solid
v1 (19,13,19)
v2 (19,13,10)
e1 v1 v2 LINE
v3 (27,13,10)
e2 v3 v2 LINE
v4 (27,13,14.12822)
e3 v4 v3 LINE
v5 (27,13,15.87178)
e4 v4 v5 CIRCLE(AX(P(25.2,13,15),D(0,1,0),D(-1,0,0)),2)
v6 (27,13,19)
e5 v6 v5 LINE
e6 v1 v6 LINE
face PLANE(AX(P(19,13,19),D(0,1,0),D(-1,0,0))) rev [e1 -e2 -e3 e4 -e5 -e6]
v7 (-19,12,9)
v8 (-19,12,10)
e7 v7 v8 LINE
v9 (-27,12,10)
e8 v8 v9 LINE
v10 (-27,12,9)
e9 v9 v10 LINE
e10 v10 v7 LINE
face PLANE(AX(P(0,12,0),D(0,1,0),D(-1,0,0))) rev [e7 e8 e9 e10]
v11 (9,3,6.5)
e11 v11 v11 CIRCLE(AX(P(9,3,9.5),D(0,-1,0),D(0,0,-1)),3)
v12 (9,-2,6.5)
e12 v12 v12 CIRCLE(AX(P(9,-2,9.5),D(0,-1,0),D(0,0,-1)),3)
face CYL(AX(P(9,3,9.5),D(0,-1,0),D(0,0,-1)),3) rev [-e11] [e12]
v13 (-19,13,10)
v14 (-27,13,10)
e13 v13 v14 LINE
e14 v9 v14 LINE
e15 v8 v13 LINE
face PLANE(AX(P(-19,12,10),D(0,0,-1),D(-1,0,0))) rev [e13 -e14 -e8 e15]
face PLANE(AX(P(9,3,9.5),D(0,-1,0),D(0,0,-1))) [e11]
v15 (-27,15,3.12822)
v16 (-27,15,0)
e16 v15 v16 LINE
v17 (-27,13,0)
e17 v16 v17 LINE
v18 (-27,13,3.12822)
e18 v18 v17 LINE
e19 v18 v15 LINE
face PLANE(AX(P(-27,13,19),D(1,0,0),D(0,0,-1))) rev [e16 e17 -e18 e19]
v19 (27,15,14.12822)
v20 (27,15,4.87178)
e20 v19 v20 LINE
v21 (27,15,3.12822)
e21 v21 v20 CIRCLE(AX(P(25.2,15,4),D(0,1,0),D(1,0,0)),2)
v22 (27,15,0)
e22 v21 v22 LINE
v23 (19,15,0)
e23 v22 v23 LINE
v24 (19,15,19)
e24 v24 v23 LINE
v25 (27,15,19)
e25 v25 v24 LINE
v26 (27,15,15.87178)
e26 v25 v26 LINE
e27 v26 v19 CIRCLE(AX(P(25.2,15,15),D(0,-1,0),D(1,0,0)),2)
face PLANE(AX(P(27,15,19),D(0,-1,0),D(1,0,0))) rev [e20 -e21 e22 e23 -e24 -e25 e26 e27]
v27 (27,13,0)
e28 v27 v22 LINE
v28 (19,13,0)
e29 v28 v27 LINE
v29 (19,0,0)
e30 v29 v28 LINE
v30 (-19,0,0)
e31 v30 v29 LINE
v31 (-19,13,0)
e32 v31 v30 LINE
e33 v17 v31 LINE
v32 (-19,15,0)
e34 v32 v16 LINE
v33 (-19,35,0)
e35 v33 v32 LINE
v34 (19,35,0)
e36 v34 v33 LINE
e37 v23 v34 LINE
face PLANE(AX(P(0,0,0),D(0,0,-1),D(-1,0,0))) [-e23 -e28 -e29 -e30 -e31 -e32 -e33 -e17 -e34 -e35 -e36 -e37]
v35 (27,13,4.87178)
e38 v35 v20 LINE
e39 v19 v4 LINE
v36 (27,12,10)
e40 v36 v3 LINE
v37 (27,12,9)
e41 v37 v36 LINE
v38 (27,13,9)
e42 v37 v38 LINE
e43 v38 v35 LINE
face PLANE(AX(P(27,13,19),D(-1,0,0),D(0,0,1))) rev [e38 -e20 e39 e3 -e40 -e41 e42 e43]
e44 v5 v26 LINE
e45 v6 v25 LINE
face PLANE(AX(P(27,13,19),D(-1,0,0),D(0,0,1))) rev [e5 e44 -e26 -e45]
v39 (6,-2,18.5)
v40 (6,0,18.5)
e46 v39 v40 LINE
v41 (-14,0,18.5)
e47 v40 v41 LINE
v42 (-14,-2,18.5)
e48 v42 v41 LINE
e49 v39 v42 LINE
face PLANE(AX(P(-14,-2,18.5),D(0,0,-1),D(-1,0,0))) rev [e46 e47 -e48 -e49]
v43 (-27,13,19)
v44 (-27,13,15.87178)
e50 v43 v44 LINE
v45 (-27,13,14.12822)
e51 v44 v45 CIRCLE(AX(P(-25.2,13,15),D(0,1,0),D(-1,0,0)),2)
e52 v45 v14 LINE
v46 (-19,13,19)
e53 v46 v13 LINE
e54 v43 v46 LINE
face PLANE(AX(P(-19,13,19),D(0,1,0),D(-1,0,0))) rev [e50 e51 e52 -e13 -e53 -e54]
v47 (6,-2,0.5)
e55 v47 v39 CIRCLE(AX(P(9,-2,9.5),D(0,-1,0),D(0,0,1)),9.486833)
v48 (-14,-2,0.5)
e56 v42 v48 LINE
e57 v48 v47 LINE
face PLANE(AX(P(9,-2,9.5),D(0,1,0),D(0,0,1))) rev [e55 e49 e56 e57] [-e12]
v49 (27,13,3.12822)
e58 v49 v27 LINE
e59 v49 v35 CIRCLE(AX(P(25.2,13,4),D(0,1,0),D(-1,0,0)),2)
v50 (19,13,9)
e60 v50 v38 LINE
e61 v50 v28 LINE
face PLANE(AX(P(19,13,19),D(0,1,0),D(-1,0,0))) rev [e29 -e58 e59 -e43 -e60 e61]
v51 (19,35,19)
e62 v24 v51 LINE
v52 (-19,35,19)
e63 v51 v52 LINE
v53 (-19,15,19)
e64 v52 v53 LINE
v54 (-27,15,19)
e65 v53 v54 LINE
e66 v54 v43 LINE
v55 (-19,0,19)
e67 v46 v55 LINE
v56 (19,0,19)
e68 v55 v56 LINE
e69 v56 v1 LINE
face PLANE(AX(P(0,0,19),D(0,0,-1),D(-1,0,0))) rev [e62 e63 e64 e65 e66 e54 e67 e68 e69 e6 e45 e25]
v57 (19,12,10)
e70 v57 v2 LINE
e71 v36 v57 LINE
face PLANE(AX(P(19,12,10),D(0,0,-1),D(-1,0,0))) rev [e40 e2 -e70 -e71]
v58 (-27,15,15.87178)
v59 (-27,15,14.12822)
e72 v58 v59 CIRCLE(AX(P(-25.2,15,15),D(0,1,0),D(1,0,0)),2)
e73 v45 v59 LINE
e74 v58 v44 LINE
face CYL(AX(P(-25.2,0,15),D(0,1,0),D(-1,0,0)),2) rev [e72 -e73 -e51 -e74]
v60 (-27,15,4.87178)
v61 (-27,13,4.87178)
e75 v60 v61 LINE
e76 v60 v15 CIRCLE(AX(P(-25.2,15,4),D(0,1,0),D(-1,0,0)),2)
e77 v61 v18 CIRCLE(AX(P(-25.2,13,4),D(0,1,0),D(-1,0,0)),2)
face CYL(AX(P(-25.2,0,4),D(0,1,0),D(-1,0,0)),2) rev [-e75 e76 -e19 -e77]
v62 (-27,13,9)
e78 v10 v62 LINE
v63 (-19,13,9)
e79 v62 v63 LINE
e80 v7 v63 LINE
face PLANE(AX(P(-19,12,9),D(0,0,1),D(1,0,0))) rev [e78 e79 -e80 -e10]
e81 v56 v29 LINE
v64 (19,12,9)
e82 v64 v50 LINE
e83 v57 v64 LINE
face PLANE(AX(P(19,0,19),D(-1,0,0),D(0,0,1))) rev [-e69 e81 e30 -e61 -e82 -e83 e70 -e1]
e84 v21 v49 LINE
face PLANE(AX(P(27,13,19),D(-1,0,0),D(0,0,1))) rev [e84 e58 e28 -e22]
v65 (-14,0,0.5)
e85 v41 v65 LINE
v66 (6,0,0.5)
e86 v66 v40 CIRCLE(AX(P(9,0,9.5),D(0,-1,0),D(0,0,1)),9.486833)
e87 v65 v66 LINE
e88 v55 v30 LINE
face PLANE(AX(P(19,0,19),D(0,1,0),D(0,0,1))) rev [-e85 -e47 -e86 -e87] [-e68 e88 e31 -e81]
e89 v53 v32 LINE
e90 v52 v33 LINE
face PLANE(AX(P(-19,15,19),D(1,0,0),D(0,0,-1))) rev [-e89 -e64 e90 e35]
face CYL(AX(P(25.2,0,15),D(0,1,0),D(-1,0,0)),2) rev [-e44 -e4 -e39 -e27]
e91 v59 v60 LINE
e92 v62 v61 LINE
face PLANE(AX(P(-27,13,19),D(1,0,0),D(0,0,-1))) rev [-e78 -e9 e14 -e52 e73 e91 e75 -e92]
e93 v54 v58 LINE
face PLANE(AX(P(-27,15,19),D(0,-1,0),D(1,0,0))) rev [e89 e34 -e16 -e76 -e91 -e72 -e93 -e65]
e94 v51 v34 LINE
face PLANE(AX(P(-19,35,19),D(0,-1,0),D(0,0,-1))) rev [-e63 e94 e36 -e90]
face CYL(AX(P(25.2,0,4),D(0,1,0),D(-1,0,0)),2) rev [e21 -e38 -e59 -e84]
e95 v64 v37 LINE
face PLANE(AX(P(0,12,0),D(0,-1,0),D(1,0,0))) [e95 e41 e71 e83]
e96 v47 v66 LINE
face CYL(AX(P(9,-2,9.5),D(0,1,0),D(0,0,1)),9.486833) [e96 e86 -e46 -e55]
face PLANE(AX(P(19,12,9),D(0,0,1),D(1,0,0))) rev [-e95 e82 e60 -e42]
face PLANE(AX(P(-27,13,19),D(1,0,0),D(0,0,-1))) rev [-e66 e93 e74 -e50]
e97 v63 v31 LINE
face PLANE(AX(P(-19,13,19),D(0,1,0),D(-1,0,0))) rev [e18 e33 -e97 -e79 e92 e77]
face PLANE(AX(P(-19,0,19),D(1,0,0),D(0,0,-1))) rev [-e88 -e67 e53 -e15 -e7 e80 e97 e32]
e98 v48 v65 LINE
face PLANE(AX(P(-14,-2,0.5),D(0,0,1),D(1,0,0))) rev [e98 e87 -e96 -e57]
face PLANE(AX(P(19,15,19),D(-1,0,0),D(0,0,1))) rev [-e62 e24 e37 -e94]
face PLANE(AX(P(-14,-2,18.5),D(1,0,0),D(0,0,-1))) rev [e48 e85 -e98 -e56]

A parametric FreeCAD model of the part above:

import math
import FreeCAD as App
import Part
import Sketcher


def add_polygon(sketch, points):
    """Adds a closed chain of lines whose ends are joined by coincident constraints."""
    first, n = sketch.GeometryCount, len(points)
    for a, b in zip(points, points[1:] + points[:1]):
        sketch.addGeometry(Part.LineSegment(App.Vector(*a, 0), App.Vector(*b, 0)), False)
    for i in range(n):
        sketch.addConstraint(Sketcher.Constraint("Coincident", first + i, 2, first + (i + 1) % n, 1))

doc = App.newDocument("Part")
body = doc.addObject("PartDesign::Body", "Body")

# Sketch on XY plane
sketch1 = doc.addObject("Sketcher::SketchObject", "Sketch")
body.addObject(sketch1)
sketch1.AttachmentSupport = (doc.XY_Plane, [""])
sketch1.MapMode = "FlatFace"
add_polygon(sketch1, [(-19, 0), (19, 0), (19, 13), (27, 13), (27, 15), (19, 15), (19, 35), (-19, 35), (-19, 15), (-27, 15), (-27, 13), (-19, 13)])  # lines 0-11
sketch1.addConstraint([
    Sketcher.Constraint("Horizontal", 0),
    Sketcher.Constraint("Vertical", 1),
    Sketcher.Constraint("Horizontal", 2),
    Sketcher.Constraint("Vertical", 3),
    Sketcher.Constraint("Horizontal", 4),
    Sketcher.Constraint("Vertical", 5),
    Sketcher.Constraint("Horizontal", 6),
    Sketcher.Constraint("Vertical", 7),
    Sketcher.Constraint("Horizontal", 8),
    Sketcher.Constraint("Vertical", 9),
    Sketcher.Constraint("Horizontal", 10),
    Sketcher.Constraint("Vertical", 11),
    Sketcher.Constraint("Symmetric", 0, 2, 11, 2, -1, 1),
    Sketcher.Constraint("Symmetric", 4, 2, 7, 2, -2),
    Sketcher.Constraint("Symmetric", 2, 2, 9, 2, -2),
    Sketcher.Constraint("Vertical", 1, 2, 4, 2),
    Sketcher.Constraint("DistanceX", 0, 1, 0, 2, 38.0),
    Sketcher.Constraint("DistanceX", 2, 1, 2, 2, 8.0),
    Sketcher.Constraint("DistanceY", 1, 1, 1, 2, 13.0),
    Sketcher.Constraint("DistanceY", 3, 1, 3, 2, 2.0),
    Sketcher.Constraint("DistanceY", 5, 1, 5, 2, 20.0),
])
pad1 = doc.addObject("PartDesign::Pad", "Pad")
body.addObject(pad1)
pad1.Profile = sketch1
pad1.Length = 19

# Sketch on XZ plane
sketch2 = doc.addObject("Sketcher::SketchObject", "Sketch001")
body.addObject(sketch2)
sketch2.AttachmentSupport = (doc.XZ_Plane, [""])
sketch2.MapMode = "FlatFace"
sketch2.AttachmentOffset = App.Placement(App.Vector(0, 0, -15), App.Rotation())
sketch2.addGeometry([
    Part.Circle(App.Vector(25.2, 15, 0), App.Vector(0, 0, 1), 2),
    Part.Circle(App.Vector(25.2, 4, 0), App.Vector(0, 0, 1), 2),
    Part.Circle(App.Vector(-25.2, 4, 0), App.Vector(0, 0, 1), 2),
    Part.Circle(App.Vector(-25.2, 15, 0), App.Vector(0, 0, 1), 2),
], False)
sketch2.addConstraint([
    Sketcher.Constraint("Equal", 0, 1),
    Sketcher.Constraint("Equal", 1, 2),
    Sketcher.Constraint("Equal", 2, 3),
    Sketcher.Constraint("Symmetric", 1, 3, 2, 3, -2),
    Sketcher.Constraint("Symmetric", 0, 3, 3, 3, -2),
    Sketcher.Constraint("Vertical", 0, 3, 1, 3),
    Sketcher.Constraint("Diameter", 0, 4.0),
    Sketcher.Constraint("DistanceY", -1, 1, 0, 3, 15.0),
    Sketcher.Constraint("DistanceY", -1, 1, 1, 3, 4.0),
    Sketcher.Constraint("DistanceX", -1, 1, 0, 3, 25.2),
])
pocket1 = doc.addObject("PartDesign::Pocket", "Pocket")
body.addObject(pocket1)
pocket1.Profile = sketch2
pocket1.Type = "ThroughAll"
pocket1.Reversed = True

# Sketch on XZ plane
sketch3 = doc.addObject("Sketcher::SketchObject", "Sketch002")
body.addObject(sketch3)
sketch3.AttachmentSupport = (doc.XZ_Plane, [""])
sketch3.MapMode = "FlatFace"
sketch3.AttachmentOffset = App.Placement(App.Vector(0, 0, -13), App.Rotation())
add_polygon(sketch3, [(-27, 10), (-27, 9), (-19, 9), (-19, 10)])  # lines 0-3
add_polygon(sketch3, [(19, 10), (19, 9), (27, 9), (27, 10)])  # lines 4-7
sketch3.addConstraint([
    Sketcher.Constraint("Vertical", 0),
    Sketcher.Constraint("Horizontal", 1),
    Sketcher.Constraint("Vertical", 2),
    Sketcher.Constraint("Horizontal", 3),
    Sketcher.Constraint("Vertical", 4),
    Sketcher.Constraint("Horizontal", 5),
    Sketcher.Constraint("Vertical", 6),
    Sketcher.Constraint("Horizontal", 7),
    Sketcher.Constraint("Symmetric", 1, 2, 4, 2, -2),
    Sketcher.Constraint("Symmetric", 3, 2, 6, 2, -2),
    Sketcher.Constraint("DistanceX", 1, 1, 1, 2, 8.0),
    Sketcher.Constraint("DistanceY", 0, 2, 0, 1, 1.0),
    Sketcher.Constraint("DistanceX", 0, 2, -1, 1, 27.0),
    Sketcher.Constraint("DistanceY", -1, 1, 0, 2, 9.0),
])
pad2 = doc.addObject("PartDesign::Pad", "Pad001")
body.addObject(pad2)
pad2.Profile = sketch3
pad2.Length = 1

# Sketch on XZ plane
sketch4 = doc.addObject("Sketcher::SketchObject", "Sketch003")
body.addObject(sketch4)
sketch4.AttachmentSupport = (doc.XZ_Plane, [""])
sketch4.MapMode = "FlatFace"
sketch4.addGeometry([
    Part.LineSegment(App.Vector(6, 18.5, 0), App.Vector(-14, 18.5, 0)),
    Part.LineSegment(App.Vector(-14, 18.5, 0), App.Vector(-14, 0.5, 0)),
    Part.LineSegment(App.Vector(-14, 0.5, 0), App.Vector(6, 0.5, 0)),
    Part.ArcOfCircle(Part.Circle(App.Vector(9, 9.5, 0), App.Vector(0, 0, 1), 9.486833), math.radians(-108.434949), math.radians(108.434949)),
], False)
sketch4.addConstraint([
    Sketcher.Constraint("Coincident", 0, 2, 1, 1),
    Sketcher.Constraint("Coincident", 1, 2, 2, 1),
    Sketcher.Constraint("Coincident", 2, 2, 3, 1),
    Sketcher.Constraint("Coincident", 3, 2, 0, 1),
    Sketcher.Constraint("Horizontal", 0),
    Sketcher.Constraint("Vertical", 1),
    Sketcher.Constraint("Horizontal", 2),
    Sketcher.Constraint("Vertical", 2, 2, 3, 2),
    Sketcher.Constraint("DistanceX", 0, 2, 0, 1, 20.0),
    Sketcher.Constraint("DistanceY", 1, 2, 1, 1, 18.0),
    Sketcher.Constraint("DistanceX", -1, 1, 3, 3, 9.0),
    Sketcher.Constraint("DistanceX", 0, 2, -1, 1, 14.0),
    Sketcher.Constraint("DistanceY", -1, 1, 3, 3, 9.5),
])
pad3 = doc.addObject("PartDesign::Pad", "Pad002")
body.addObject(pad3)
pad3.Profile = sketch4
pad3.Length = 2

# Sketch on XZ plane
sketch5 = doc.addObject("Sketcher::SketchObject", "Sketch004")
body.addObject(sketch5)
sketch5.AttachmentSupport = (doc.XZ_Plane, [""])
sketch5.MapMode = "FlatFace"
sketch5.AttachmentOffset = App.Placement(App.Vector(0, 0, 2), App.Rotation())
sketch5.addGeometry(Part.Circle(App.Vector(9, 9.5, 0), App.Vector(0, 0, 1), 3), False)
sketch5.addConstraint([
    Sketcher.Constraint("Diameter", 0, 6.0),
    Sketcher.Constraint("DistanceX", -1, 1, 0, 3, 9.0),
    Sketcher.Constraint("DistanceY", -1, 1, 0, 3, 9.5),
])
pocket2 = doc.addObject("PartDesign::Pocket", "Pocket001")
body.addObject(pocket2)
pocket2.Profile = sketch5
pocket2.Length = 5

doc.recompute()
